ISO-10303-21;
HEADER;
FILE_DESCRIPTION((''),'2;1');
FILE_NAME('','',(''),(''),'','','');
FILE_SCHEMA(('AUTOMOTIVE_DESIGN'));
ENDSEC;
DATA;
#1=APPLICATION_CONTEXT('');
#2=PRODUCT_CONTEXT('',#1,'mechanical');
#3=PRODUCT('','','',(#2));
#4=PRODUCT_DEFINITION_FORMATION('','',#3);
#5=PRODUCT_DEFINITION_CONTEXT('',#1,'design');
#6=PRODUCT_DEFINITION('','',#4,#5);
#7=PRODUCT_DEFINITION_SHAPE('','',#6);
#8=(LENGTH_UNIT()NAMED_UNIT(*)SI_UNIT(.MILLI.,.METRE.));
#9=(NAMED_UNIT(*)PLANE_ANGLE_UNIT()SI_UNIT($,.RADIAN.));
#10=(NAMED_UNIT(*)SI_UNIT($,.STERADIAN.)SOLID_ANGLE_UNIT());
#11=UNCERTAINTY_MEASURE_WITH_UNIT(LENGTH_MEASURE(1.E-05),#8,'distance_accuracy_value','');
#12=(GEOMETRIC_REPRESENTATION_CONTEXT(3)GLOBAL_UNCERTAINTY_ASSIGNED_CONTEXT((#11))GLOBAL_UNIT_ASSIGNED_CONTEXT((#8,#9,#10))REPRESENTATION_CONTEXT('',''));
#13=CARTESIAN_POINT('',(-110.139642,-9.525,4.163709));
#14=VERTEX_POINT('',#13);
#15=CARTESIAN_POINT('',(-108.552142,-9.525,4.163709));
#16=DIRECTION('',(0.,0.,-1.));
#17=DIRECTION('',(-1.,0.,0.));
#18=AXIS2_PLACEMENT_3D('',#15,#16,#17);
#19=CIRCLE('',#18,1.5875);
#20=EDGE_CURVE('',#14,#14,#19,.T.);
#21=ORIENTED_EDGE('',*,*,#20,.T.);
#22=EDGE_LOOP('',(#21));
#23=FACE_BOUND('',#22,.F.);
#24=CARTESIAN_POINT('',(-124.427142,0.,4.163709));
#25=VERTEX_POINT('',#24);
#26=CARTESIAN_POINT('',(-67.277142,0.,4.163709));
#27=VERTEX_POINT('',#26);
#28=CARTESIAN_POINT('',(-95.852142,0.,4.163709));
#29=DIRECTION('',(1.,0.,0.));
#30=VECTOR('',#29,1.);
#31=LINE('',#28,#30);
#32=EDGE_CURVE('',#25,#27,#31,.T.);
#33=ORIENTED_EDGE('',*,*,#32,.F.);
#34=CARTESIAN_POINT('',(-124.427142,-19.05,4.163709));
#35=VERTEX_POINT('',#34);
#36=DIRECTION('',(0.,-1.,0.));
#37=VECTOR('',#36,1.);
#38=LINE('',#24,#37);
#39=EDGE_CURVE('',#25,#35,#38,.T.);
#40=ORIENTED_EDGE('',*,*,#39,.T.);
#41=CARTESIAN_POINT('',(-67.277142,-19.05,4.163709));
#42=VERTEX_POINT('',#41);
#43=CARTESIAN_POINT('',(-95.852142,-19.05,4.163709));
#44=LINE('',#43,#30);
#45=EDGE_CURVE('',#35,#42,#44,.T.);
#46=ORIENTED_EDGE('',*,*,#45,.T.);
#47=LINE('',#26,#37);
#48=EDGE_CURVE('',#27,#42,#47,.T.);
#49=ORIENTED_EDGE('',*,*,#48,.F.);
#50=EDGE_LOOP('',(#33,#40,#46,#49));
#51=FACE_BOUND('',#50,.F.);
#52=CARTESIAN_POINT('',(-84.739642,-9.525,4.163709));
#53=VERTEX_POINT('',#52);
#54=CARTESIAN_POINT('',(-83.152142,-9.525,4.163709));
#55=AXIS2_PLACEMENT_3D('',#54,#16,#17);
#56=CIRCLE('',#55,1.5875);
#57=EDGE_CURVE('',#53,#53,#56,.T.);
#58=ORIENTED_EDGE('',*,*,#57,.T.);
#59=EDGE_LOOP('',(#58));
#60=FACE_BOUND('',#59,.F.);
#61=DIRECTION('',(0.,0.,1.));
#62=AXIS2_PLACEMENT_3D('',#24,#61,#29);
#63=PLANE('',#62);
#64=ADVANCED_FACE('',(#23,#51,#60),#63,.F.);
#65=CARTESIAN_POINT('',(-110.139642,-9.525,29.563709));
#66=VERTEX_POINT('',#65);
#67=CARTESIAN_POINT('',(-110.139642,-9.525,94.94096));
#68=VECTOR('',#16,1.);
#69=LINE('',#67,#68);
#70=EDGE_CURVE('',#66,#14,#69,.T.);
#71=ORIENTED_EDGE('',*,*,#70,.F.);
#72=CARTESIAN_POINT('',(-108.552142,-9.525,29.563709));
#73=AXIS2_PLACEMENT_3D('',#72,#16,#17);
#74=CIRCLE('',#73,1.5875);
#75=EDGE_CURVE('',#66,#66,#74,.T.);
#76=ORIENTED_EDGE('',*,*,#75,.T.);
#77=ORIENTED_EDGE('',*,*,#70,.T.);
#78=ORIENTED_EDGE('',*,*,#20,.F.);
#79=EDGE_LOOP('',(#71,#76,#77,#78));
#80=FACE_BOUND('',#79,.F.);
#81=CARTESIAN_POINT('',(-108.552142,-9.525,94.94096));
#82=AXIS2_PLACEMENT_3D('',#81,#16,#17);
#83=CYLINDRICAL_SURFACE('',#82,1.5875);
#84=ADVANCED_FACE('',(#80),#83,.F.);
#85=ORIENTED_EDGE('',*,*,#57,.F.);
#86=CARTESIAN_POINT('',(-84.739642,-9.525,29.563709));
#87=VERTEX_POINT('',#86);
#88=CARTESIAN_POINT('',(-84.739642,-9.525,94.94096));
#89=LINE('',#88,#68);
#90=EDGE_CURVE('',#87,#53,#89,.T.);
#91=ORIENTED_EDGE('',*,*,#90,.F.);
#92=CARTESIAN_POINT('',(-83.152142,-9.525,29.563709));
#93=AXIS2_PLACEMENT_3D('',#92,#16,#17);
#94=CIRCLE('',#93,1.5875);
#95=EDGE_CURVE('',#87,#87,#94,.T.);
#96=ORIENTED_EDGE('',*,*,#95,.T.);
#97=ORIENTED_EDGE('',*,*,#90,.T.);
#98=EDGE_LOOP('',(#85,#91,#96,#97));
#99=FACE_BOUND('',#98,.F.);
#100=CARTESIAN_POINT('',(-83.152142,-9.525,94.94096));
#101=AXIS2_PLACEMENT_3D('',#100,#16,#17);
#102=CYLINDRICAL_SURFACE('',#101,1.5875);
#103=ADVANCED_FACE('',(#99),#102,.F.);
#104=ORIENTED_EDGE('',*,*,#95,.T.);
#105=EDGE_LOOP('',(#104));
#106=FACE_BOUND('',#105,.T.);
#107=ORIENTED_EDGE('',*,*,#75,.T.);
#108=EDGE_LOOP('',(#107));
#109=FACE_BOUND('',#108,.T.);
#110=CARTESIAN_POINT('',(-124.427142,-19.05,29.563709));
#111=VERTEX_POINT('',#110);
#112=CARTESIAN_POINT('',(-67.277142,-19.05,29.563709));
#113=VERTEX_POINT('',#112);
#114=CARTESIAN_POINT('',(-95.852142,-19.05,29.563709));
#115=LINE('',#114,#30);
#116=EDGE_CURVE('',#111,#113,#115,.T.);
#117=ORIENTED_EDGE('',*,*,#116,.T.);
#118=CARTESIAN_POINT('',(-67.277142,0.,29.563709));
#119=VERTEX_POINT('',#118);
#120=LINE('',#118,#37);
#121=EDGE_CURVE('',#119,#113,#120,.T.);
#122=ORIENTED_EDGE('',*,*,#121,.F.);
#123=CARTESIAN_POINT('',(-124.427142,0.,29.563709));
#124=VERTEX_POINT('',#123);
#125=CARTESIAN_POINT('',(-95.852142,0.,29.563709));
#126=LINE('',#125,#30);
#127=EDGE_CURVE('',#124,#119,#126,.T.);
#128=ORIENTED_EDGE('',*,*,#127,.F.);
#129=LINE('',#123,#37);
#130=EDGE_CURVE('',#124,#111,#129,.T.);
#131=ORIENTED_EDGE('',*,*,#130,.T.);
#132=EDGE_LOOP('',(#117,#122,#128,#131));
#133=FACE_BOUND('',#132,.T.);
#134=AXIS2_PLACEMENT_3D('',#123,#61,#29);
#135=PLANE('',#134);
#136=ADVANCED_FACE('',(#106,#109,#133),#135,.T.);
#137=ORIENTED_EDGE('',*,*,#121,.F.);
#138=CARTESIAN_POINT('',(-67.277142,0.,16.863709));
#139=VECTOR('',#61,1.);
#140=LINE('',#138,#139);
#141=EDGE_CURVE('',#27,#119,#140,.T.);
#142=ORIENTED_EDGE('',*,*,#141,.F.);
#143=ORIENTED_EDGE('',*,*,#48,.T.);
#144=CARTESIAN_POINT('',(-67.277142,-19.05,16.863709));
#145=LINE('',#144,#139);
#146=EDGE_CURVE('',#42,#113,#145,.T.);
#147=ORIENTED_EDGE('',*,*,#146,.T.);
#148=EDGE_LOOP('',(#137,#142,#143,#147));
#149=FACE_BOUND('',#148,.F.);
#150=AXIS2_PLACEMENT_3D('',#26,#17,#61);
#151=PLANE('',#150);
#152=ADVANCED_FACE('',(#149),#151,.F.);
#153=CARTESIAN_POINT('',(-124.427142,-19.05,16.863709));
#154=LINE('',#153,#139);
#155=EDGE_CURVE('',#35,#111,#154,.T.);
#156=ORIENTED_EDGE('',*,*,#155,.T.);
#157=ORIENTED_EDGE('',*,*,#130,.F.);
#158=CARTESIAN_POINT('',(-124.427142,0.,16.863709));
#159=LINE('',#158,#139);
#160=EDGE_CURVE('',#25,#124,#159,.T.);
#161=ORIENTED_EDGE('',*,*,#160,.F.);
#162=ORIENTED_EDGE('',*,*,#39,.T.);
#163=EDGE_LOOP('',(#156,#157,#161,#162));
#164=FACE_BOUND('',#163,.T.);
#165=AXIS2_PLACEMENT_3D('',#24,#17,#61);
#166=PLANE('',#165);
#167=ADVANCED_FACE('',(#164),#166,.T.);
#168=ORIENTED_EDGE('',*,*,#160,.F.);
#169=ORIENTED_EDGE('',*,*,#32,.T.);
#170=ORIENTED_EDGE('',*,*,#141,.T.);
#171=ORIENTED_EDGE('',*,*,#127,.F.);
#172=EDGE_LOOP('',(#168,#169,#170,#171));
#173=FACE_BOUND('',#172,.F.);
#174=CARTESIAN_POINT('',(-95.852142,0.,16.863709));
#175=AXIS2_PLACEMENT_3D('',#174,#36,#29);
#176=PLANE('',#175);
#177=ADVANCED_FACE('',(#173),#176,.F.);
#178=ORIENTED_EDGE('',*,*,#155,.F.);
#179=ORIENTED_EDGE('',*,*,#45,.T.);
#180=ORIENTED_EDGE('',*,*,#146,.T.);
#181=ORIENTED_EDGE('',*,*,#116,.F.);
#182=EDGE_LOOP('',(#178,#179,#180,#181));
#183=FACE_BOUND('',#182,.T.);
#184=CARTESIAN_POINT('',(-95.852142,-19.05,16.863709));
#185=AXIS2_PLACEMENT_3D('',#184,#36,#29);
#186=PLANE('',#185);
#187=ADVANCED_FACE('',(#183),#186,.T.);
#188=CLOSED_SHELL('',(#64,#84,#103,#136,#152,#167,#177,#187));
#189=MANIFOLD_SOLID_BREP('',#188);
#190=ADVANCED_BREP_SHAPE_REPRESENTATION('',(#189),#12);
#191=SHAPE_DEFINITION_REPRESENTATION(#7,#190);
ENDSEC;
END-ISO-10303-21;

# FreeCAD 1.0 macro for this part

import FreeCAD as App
import Part
import Sketcher
Q = App.Units.Quantity


def add_polygon(sketch, points):
    """Adds a closed chain of lines whose ends are joined by coincident constraints."""
    first, n = sketch.GeometryCount, len(points)
    for a, b in zip(points, points[1:] + points[:1]):
        sketch.addGeometry(Part.LineSegment(App.Vector(*a, 0), App.Vector(*b, 0)), False)
    for i in range(n):
        sketch.addConstraint(Sketcher.Constraint("Coincident", first + i, 2, first + (i + 1) % n, 1))

doc = App.newDocument("Part")
body = doc.addObject("PartDesign::Body", "Body")

sketch1 = doc.addObject("Sketcher::SketchObject", "Sketch")
body.addObject(sketch1)
sketch1.AttachmentSupport = (doc.XZ_Plane, [""])
sketch1.MapMode = "FlatFace"
add_polygon(sketch1, [(-124, 30), (-124, 4), (-67, 4), (-67, 30)])
sketch1.addConstraint(Sketcher.Constraint("Vertical", 0))
sketch1.addConstraint(Sketcher.Constraint("Horizontal", 1))
sketch1.addConstraint(Sketcher.Constraint("Vertical", 2))
sketch1.addConstraint(Sketcher.Constraint("Horizontal", 3))
sketch1.addConstraint(Sketcher.Constraint("DistanceY", 0, 2, 0, 1, Q("1 in")))
sketch1.addConstraint(Sketcher.Constraint("DistanceX", 1, 1, 1, 2, Q("2.25 in")))
sketch1.addConstraint(Sketcher.Constraint("DistanceY", -1, 1, 0, 2, 4.163709))
sketch1.addConstraint(Sketcher.Constraint("DistanceX", 1, 2, -1, 1, 67.277142))
pad1 = doc.addObject("PartDesign::Pad", "Pad")
body.addObject(pad1)
pad1.Profile = sketch1
pad1.Length = Q("0.75 in")

sketch2 = doc.addObject("Sketcher::SketchObject", "Sketch001")
body.addObject(sketch2)
sketch2.AttachmentSupport = (doc.XY_Plane, [""])
sketch2.MapMode = "FlatFace"
sketch2.AttachmentOffset = App.Placement(App.Vector(0, 0, 29.563709), App.Rotation())
sketch2.addGeometry(Part.Circle(App.Vector(-108.6, -9.5, 0), App.Vector(0, 0, 1), 1.6), False)
sketch2.addGeometry(Part.Circle(App.Vector(-83.2, -9.5, 0), App.Vector(0, 0, 1), 1.6), False)
sketch2.addConstraint(Sketcher.Constraint("Equal", 0, 1))
sketch2.addConstraint(Sketcher.Constraint("Horizontal", 0, 3, 1, 3))
sketch2.addConstraint(Sketcher.Constraint("Diameter", 0, Q("0.125 in")))
sketch2.addConstraint(Sketcher.Constraint("DistanceX", 0, 3, 1, 3, Q("1 in")))
sketch2.addConstraint(Sketcher.Constraint("DistanceY", 0, 3, -1, 1, Q("0.375 in")))
sketch2.addConstraint(Sketcher.Constraint("DistanceX", 1, 3, -1, 1, 83.152142))
doc.recompute()
hole = doc.addObject("PartDesign::Hole", "Hole")
body.addObject(hole)
hole.Profile = sketch2
hole.ThreadType = "None"
hole.Diameter = Q("0.125 in")
hole.DepthType = "ThroughAll"

doc.recompute()
